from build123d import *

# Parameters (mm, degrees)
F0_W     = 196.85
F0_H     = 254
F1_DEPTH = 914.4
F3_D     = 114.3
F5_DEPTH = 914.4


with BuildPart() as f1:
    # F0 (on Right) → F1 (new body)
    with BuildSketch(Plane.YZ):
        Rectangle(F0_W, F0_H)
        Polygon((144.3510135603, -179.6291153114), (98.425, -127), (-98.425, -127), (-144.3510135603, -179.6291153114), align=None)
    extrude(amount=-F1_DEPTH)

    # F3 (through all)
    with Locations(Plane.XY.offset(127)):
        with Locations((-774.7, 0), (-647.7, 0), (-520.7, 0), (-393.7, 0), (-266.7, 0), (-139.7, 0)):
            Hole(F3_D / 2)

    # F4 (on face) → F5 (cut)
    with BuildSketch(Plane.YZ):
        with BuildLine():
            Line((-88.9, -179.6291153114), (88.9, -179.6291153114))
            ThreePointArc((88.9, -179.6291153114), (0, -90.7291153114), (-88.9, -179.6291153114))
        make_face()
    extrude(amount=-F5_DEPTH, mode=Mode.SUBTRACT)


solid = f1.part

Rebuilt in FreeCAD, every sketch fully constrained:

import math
import FreeCAD as App
import Part
import Sketcher
from FreeCAD import Vector
Q = App.Units.Quantity


def add_polygon(sketch, points):
    """Adds a closed chain of lines whose ends are joined by coincident constraints."""
    first, n = sketch.GeometryCount, len(points)
    for a, b in zip(points, points[1:] + points[:1]):
        sketch.addGeometry(Part.LineSegment(App.Vector(*a, 0), App.Vector(*b, 0)), False)
    for i in range(n):
        sketch.addConstraint(Sketcher.Constraint("Coincident", first + i, 2, first + (i + 1) % n, 1))

doc = App.newDocument("Part")
body = doc.addObject("PartDesign::Body", "Body")

sketch1 = body.newObject("Sketcher::SketchObject", "Sketch")
sketch1.AttachmentSupport = (doc.getObject("YZ_Plane"), [""])
sketch1.MapMode = "FlatFace"
add_polygon(sketch1, [(-98.425, 127), (-98.425, -127), (-144.351014, -179.629115), (144.351014, -179.629115), (98.425, -127), (98.425, 127)])
sketch1.addConstraint([
    Sketcher.Constraint("Vertical", 0),
    Sketcher.Constraint("Horizontal", 2),
    Sketcher.Constraint("Vertical", 4),
    Sketcher.Constraint("Horizontal", 5),
    Sketcher.Constraint("Symmetric", 0, 2, 4, 2, -1, 1),
    Sketcher.Constraint("Horizontal", 0, 2, 3, 2),
    Sketcher.Constraint("Equal", 1, 3),
    Sketcher.Constraint("DistanceY", 0, 2, 0, 1, Q("10 in")),
    Sketcher.Constraint("DistanceX", 5, 2, 5, 1, Q("7.75 in")),
    Sketcher.Constraint("Distance", 1, Q("2.75 in")),
    Sketcher.Constraint("DistanceX", 2, 1, 2, 2, 288.702027),
])
pad1 = body.newObject("PartDesign::Pad", "Pad")
pad1.Profile = sketch1
pad1.Length = Q("36 in")
pad1.Reversed = True

sketch2 = body.newObject("Sketcher::SketchObject", "Sketch001")
sketch2.AttachmentSupport = (doc.getObject("XY_Plane"), [""])
sketch2.MapMode = "FlatFace"
sketch2.AttachmentOffset = App.Placement(Vector(0, 0, 5 * 25.4), App.Rotation())
sketch2.addGeometry([
    Part.Circle(Vector(-774.7, 0, 0), Vector(0, 0, 1), 57.15),
    Part.Circle(Vector(-647.7, 0, 0), Vector(0, 0, 1), 57.15),
    Part.Circle(Vector(-520.7, 0, 0), Vector(0, 0, 1), 57.15),
    Part.Circle(Vector(-393.7, 0, 0), Vector(0, 0, 1), 57.15),
    Part.Circle(Vector(-266.7, 0, 0), Vector(0, 0, 1), 57.15),
    Part.Circle(Vector(-139.7, 0, 0), Vector(0, 0, 1), 57.15),
], False)
sketch2.addConstraint([
    Sketcher.Constraint("Equal", 0, 1),
    Sketcher.Constraint("Equal", 1, 2),
    Sketcher.Constraint("Equal", 2, 3),
    Sketcher.Constraint("Equal", 3, 4),
    Sketcher.Constraint("Equal", 4, 5),
    Sketcher.Constraint("PointOnObject", 0, 3, -1),
    Sketcher.Constraint("PointOnObject", 1, 3, -1),
    Sketcher.Constraint("PointOnObject", 2, 3, -1),
    Sketcher.Constraint("PointOnObject", 3, 3, -1),
    Sketcher.Constraint("PointOnObject", 4, 3, -1),
    Sketcher.Constraint("PointOnObject", 5, 3, -1),
    Sketcher.Constraint("Diameter", 0, Q("4.5 in")),
    Sketcher.Constraint("DistanceX", 0, 3, 1, 3, Q("5 in")),
    Sketcher.Constraint("DistanceX", 1, 3, 2, 3, Q("5 in")),
    Sketcher.Constraint("DistanceX", 2, 3, 3, 3, Q("5 in")),
    Sketcher.Constraint("DistanceX", 3, 3, 4, 3, Q("5 in")),
    Sketcher.Constraint("DistanceX", 4, 3, 5, 3, Q("5 in")),
    Sketcher.Constraint("DistanceX", 0, 3, -1, 1, Q("30.5 in")),
])
doc.recompute()
hole = body.newObject("PartDesign::Hole", "Hole")
hole.Profile = sketch2
hole.ThreadType = "None"
hole.Diameter = Q("4.5 in")
hole.DepthType = "ThroughAll"

sketch3 = body.newObject("Sketcher::SketchObject", "Sketch002")
sketch3.AttachmentSupport = (doc.getObject("YZ_Plane"), [""])
sketch3.MapMode = "FlatFace"
sketch3.addGeometry([
    Part.LineSegment(Vector(-88.9, -179.629115, 0), Vector(88.9, -179.629115, 0)),
    Part.ArcOfCircle(Part.Circle(Vector(0, -179.629115, 0), Vector(0, 0, 1), 88.9), math.radians(0), math.radians(180)),
], False)
sketch3.addConstraint([
    Sketcher.Constraint("Coincident", 0, 1, 1, 2),
    Sketcher.Constraint("Coincident", 1, 1, 0, 2),
    Sketcher.Constraint("Horizontal", 0),
    Sketcher.Constraint("PointOnObject", 1, 3, -2),
    Sketcher.Constraint("Horizontal", 1, 3, 0, 1),
    Sketcher.Constraint("Radius", 1, Q("3.5 in")),
    Sketcher.Constraint("DistanceY", 1, 3, -1, 1, 179.629115),
])
pocket1 = body.newObject("PartDesign::Pocket", "Pocket")
pocket1.Profile = sketch3
pocket1.Length = Q("36 in")

doc.recompute()
